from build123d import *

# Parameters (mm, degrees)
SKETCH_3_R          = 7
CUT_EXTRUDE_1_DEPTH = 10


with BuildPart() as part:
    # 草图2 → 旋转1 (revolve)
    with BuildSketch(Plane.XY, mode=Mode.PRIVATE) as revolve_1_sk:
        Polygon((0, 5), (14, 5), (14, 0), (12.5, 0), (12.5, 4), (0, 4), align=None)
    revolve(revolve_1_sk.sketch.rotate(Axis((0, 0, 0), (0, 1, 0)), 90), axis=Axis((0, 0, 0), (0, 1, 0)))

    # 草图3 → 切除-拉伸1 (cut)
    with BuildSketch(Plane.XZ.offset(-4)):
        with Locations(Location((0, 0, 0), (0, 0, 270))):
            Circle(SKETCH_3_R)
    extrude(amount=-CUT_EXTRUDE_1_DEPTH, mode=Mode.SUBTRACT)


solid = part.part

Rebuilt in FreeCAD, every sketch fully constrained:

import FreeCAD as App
import Part
import Sketcher


def add_polygon(sketch, points):
    """Adds a closed chain of lines whose ends are joined by coincident constraints."""
    first, n = sketch.GeometryCount, len(points)
    for a, b in zip(points, points[1:] + points[:1]):
        sketch.addGeometry(Part.LineSegment(App.Vector(*a, 0), App.Vector(*b, 0)), False)
    for i in range(n):
        sketch.addConstraint(Sketcher.Constraint("Coincident", first + i, 2, first + (i + 1) % n, 1))

doc = App.newDocument("Part")
body = doc.addObject("PartDesign::Body", "Body")

sketch1 = body.newObject("Sketcher::SketchObject", "Sketch")
sketch1.AttachmentSupport = (doc.getObject("XY_Plane"), [""])
sketch1.MapMode = "FlatFace"
add_polygon(sketch1, [(14, 5), (0, 5), (0, 4), (12.5, 4), (12.5, 0), (14, 0)])
sketch1.addConstraint(Sketcher.Constraint("Horizontal", 0))
sketch1.addConstraint(Sketcher.Constraint("Vertical", 1))
sketch1.addConstraint(Sketcher.Constraint("Horizontal", 2))
sketch1.addConstraint(Sketcher.Constraint("Vertical", 3))
sketch1.addConstraint(Sketcher.Constraint("Horizontal", 4))
sketch1.addConstraint(Sketcher.Constraint("Vertical", 5))
sketch1.addConstraint(Sketcher.Constraint("PointOnObject", 0, 2, -2))
sketch1.addConstraint(Sketcher.Constraint("PointOnObject", 3, 2, -1))
sketch1.addConstraint(Sketcher.Constraint("DistanceX", 0, 2, 0, 1, 14.0))
sketch1.addConstraint(Sketcher.Constraint("DistanceY", 1, 2, 1, 1, 1.0))
sketch1.addConstraint(Sketcher.Constraint("DistanceY", 3, 2, 3, 1, 4.0))
sketch1.addConstraint(Sketcher.Constraint("DistanceX", 2, 1, 2, 2, 12.5))
revolution = body.newObject("PartDesign::Revolution", "Revolution")
revolution.Profile = sketch1
revolution.ReferenceAxis = (sketch1, ["V_Axis"])
revolution.Angle = 360

sketch2 = body.newObject("Sketcher::SketchObject", "Sketch001")
sketch2.AttachmentSupport = (doc.getObject("XZ_Plane"), [""])
sketch2.MapMode = "FlatFace"
sketch2.AttachmentOffset = App.Placement(App.Vector(0, 0, -4), App.Rotation())
sketch2.addGeometry(Part.Circle(App.Vector(0, 0, 0), App.Vector(0, 0, 1), 7), False)
sketch2.addConstraint(Sketcher.Constraint("Coincident", 0, 3, -1, 1))
sketch2.addConstraint(Sketcher.Constraint("Diameter", 0, 14.0))
pocket1 = body.newObject("PartDesign::Pocket", "Pocket")
pocket1.Profile = sketch2
pocket1.Length = 10

doc.recompute()
